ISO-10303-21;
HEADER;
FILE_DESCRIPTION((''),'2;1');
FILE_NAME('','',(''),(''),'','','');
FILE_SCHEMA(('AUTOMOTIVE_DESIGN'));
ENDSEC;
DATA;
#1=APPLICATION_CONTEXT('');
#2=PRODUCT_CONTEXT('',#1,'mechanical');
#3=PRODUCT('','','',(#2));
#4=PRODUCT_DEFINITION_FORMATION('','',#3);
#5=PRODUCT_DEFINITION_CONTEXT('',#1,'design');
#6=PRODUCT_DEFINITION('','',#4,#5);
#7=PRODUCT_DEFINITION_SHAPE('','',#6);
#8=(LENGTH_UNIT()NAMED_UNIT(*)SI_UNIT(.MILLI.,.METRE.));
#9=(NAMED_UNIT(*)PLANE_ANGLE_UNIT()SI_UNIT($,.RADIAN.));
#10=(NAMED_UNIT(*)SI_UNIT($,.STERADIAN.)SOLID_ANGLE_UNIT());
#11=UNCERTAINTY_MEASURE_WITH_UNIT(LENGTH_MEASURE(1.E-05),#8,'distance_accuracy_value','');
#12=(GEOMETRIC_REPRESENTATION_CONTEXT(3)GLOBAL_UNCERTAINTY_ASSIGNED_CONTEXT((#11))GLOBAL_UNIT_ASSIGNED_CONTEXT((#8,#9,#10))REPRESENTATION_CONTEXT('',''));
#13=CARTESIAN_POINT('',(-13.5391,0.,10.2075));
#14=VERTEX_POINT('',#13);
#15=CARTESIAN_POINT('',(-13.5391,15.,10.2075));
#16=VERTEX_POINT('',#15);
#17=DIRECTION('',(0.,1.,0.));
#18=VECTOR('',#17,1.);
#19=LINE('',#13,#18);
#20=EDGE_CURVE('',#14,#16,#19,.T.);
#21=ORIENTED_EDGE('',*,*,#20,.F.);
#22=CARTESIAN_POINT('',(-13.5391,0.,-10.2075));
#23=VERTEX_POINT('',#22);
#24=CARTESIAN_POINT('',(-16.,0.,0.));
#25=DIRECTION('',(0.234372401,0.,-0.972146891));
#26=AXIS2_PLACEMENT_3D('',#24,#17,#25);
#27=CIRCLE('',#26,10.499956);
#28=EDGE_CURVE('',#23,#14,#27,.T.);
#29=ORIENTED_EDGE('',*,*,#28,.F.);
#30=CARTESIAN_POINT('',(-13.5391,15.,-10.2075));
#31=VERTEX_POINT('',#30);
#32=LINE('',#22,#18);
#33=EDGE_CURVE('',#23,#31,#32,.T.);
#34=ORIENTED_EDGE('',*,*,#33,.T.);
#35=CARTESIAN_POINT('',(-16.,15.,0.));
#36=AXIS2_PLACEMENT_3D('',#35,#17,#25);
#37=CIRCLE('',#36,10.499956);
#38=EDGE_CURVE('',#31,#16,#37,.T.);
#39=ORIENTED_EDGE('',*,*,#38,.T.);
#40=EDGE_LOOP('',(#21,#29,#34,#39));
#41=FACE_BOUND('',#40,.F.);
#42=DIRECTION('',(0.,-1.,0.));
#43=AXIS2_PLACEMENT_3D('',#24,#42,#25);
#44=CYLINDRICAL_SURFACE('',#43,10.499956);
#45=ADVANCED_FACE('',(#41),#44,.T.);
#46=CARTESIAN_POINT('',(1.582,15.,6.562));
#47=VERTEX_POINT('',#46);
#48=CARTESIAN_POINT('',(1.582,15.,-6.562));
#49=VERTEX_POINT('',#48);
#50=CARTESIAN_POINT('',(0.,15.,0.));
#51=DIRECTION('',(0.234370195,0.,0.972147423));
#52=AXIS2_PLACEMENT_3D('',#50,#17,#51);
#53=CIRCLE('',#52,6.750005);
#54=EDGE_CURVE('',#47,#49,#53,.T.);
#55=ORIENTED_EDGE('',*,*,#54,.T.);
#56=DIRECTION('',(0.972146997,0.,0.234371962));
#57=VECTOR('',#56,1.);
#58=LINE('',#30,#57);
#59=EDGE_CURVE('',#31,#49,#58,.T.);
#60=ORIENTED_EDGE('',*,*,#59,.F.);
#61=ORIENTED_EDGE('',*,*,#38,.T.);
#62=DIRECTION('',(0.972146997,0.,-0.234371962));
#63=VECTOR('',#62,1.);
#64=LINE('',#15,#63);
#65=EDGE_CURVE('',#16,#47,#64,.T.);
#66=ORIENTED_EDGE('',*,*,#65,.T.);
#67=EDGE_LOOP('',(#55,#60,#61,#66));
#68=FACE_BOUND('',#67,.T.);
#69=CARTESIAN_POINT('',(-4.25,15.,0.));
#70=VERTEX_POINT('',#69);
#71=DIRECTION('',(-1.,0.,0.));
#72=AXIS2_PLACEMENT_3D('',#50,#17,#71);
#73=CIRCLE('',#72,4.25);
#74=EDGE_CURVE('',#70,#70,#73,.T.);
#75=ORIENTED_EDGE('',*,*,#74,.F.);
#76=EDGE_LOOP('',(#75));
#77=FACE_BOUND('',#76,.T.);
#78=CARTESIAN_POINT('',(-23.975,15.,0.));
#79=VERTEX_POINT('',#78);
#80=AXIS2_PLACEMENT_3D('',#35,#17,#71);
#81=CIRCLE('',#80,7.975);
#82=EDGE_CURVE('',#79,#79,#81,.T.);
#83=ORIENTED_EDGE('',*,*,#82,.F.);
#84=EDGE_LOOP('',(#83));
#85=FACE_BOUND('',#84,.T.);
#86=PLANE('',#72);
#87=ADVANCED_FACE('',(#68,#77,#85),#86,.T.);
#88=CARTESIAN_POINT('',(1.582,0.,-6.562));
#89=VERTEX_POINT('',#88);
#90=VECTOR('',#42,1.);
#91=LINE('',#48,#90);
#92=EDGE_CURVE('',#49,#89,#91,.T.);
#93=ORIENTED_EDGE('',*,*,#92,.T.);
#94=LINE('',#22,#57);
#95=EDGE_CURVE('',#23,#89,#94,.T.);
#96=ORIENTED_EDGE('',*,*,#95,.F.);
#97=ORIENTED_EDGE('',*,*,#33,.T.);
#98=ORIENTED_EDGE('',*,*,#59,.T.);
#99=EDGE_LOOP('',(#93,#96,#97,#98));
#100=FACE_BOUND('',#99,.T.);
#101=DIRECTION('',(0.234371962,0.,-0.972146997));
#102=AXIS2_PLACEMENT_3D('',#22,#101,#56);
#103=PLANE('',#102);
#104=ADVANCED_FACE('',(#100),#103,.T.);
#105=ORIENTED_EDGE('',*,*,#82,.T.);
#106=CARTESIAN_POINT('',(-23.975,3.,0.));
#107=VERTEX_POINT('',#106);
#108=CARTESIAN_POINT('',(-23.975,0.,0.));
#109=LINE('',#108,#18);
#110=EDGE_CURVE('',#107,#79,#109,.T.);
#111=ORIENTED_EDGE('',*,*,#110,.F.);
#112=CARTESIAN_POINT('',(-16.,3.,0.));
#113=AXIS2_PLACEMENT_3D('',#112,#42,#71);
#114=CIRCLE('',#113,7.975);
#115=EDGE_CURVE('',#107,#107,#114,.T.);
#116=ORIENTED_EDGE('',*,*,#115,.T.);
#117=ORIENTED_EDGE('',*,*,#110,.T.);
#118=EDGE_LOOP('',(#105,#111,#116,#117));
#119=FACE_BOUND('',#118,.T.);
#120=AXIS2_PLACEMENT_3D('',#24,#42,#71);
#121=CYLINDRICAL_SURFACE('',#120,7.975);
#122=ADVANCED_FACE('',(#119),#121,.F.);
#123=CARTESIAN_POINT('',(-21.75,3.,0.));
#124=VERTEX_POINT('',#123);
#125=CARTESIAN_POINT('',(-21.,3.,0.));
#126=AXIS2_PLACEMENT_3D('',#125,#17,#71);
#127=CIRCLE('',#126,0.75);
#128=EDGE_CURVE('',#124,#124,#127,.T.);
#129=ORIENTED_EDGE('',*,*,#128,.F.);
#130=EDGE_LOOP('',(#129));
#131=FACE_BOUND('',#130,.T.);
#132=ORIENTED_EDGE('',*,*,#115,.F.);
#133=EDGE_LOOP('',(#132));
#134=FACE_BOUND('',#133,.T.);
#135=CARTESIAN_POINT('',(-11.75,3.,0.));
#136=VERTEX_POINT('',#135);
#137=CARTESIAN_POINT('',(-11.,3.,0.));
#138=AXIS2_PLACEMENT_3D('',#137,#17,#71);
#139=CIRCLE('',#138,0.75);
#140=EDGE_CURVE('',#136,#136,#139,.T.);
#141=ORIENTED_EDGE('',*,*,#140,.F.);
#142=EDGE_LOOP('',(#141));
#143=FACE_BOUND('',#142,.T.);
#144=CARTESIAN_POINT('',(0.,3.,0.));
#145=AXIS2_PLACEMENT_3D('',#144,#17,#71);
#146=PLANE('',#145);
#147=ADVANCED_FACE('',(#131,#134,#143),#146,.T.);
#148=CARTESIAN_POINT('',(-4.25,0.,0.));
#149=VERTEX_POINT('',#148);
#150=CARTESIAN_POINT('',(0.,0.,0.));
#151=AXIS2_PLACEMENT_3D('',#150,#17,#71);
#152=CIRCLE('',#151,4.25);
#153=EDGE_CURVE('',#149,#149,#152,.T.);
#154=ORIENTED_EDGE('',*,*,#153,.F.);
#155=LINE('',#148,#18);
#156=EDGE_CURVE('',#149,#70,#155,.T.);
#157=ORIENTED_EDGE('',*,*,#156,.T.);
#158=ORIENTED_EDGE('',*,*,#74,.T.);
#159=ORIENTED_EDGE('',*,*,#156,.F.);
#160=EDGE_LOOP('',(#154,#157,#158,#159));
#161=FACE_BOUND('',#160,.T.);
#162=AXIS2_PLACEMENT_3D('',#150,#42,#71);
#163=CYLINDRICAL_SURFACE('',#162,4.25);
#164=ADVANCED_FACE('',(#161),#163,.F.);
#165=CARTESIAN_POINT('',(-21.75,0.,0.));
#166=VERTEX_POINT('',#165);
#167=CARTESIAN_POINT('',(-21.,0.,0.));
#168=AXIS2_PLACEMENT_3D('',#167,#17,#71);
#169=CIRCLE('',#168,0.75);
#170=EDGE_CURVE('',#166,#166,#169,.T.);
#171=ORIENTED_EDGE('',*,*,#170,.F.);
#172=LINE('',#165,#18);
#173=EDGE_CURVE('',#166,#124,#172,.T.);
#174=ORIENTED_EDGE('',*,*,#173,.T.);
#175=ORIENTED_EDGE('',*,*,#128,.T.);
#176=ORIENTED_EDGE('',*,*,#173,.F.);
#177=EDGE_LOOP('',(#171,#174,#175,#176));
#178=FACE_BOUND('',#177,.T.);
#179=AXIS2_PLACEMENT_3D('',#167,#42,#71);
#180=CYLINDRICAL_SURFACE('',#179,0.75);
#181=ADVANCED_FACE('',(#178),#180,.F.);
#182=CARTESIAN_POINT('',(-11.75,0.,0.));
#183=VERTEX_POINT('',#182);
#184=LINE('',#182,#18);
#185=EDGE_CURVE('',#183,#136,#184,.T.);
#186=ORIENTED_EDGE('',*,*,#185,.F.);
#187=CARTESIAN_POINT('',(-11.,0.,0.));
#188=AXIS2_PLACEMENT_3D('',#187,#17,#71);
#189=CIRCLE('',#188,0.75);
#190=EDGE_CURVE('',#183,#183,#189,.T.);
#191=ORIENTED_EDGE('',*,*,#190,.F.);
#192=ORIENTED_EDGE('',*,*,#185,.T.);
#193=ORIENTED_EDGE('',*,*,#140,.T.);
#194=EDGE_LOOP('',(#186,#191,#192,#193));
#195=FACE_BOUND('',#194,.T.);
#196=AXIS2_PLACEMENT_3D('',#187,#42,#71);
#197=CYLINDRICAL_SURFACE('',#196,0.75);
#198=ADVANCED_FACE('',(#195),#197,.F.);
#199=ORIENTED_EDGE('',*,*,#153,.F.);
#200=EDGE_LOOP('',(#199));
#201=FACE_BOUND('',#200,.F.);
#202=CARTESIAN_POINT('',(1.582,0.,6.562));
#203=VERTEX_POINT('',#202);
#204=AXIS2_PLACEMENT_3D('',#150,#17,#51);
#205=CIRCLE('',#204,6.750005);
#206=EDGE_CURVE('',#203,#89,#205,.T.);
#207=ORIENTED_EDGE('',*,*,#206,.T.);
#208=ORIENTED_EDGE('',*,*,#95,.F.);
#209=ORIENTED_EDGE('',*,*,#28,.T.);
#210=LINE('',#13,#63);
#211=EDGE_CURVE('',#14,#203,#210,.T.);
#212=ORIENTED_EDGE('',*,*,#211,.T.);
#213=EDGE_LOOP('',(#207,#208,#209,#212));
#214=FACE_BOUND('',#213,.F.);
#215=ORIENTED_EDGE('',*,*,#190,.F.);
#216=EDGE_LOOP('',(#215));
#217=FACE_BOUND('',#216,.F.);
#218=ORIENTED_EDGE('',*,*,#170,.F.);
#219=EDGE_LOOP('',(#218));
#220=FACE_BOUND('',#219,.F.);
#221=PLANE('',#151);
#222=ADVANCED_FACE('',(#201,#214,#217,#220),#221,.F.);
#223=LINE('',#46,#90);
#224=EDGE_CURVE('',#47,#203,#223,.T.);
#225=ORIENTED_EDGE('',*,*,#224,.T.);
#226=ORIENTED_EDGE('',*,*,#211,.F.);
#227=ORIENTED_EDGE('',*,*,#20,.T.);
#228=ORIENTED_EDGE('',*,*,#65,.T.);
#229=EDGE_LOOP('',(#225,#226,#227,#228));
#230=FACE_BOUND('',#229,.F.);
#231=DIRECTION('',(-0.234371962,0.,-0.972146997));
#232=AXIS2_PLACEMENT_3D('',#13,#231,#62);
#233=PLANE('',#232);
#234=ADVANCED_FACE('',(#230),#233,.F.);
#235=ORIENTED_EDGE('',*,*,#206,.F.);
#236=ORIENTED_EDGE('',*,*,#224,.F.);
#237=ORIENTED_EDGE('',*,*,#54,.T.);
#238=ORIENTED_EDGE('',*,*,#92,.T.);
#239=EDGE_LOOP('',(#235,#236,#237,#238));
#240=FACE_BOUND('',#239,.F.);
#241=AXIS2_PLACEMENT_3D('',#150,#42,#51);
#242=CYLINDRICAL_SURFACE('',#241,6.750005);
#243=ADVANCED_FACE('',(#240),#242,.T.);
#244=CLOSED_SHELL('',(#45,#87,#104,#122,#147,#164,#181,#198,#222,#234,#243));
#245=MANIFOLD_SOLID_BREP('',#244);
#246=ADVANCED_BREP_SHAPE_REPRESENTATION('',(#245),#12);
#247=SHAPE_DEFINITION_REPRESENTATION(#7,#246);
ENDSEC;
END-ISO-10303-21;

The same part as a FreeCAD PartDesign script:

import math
import FreeCAD as App
import Part
import Sketcher

V = App.Vector

doc = App.newDocument("Part")
body = doc.addObject("PartDesign::Body", "Body")

sketch1 = doc.addObject("Sketcher::SketchObject", "Sketch")
body.addObject(sketch1)
sketch1.AttachmentSupport = (doc.XZ_Plane, [""])
sketch1.MapMode = "FlatFace"
sketch1.addGeometry([
    Part.LineSegment(V(1.582, -6.562, 0), V(-13.5391, -10.2075, 0)),
    Part.ArcOfCircle(Part.Circle(V(-16, 0, 0), V(0, 0, 1), 10.499956), math.radians(76.445369), math.radians(283.554631)),
    Part.LineSegment(V(-13.5391, 10.2075, 0), V(1.582, 6.562, 0)),
    Part.ArcOfCircle(Part.Circle(V(0, 0, 0), V(0, 0, 1), 6.750005), math.radians(-76.445499), math.radians(76.445499)),
    Part.Circle(V(-11, 0, 0), V(0, 0, 1), 0.75),
    Part.Circle(V(-21, 0, 0), V(0, 0, 1), 0.75),
    Part.Circle(V(0, 0, 0), V(0, 0, 1), 4.25),
], False)
sketch1.addConstraint([
    Sketcher.Constraint("Tangent", 0, 2, 1, 2),
    Sketcher.Constraint("Tangent", 1, 1, 2, 1),
    Sketcher.Constraint("Tangent", 2, 2, 3, 2),
    Sketcher.Constraint("Tangent", 3, 1, 0, 1),
    Sketcher.Constraint("Coincident", 3, 3, -1, 1),
    Sketcher.Constraint("Coincident", 6, 3, -1, 1),
    Sketcher.Constraint("Equal", 4, 5),
    Sketcher.Constraint("PointOnObject", 1, 3, -1),
    Sketcher.Constraint("PointOnObject", 4, 3, -1),
    Sketcher.Constraint("PointOnObject", 5, 3, -1),
    Sketcher.Constraint("Diameter", 4, 1.5),
    Sketcher.Constraint("Diameter", 6, 8.5),
    Sketcher.Constraint("Radius", 1, 10.5),
    Sketcher.Constraint("Radius", 3, 6.75),
    Sketcher.Constraint("DistanceX", 1, 3, -1, 1, 16.0),
    Sketcher.Constraint("DistanceX", 5, 3, -1, 1, 21.0),
    Sketcher.Constraint("DistanceX", 5, 3, 4, 3, 10.0),
])
pad1 = doc.addObject("PartDesign::Pad", "Pad")
body.addObject(pad1)
pad1.Profile = sketch1
pad1.Length = 3
pad1.Reversed = True

sketch2 = doc.addObject("Sketcher::SketchObject", "Sketch001")
body.addObject(sketch2)
sketch2.AttachmentSupport = (doc.XZ_Plane, [""])
sketch2.MapMode = "FlatFace"
sketch2.addGeometry([
    Part.LineSegment(V(1.582, -6.562, 0), V(-13.5391, -10.2075, 0)),
    Part.ArcOfCircle(Part.Circle(V(-16, 0, 0), V(0, 0, 1), 10.499956), math.radians(76.445369), math.radians(283.554631)),
    Part.LineSegment(V(-13.5391, 10.2075, 0), V(1.582, 6.562, 0)),
    Part.ArcOfCircle(Part.Circle(V(0, 0, 0), V(0, 0, 1), 6.750005), math.radians(-76.445499), math.radians(76.445499)),
    Part.Circle(V(0, 0, 0), V(0, 0, 1), 4.25),
    Part.Circle(V(-16, 0, 0), V(0, 0, 1), 7.975),
], False)
sketch2.addConstraint([
    Sketcher.Constraint("Tangent", 0, 2, 1, 2),
    Sketcher.Constraint("Tangent", 1, 1, 2, 1),
    Sketcher.Constraint("Tangent", 2, 2, 3, 2),
    Sketcher.Constraint("Tangent", 3, 1, 0, 1),
    Sketcher.Constraint("Coincident", 3, 3, -1, 1),
    Sketcher.Constraint("Coincident", 4, 3, -1, 1),
    Sketcher.Constraint("Coincident", 5, 3, 1, 3),
    Sketcher.Constraint("PointOnObject", 1, 3, -1),
    Sketcher.Constraint("Diameter", 4, 8.5),
    Sketcher.Constraint("Radius", 1, 10.5),
    Sketcher.Constraint("Diameter", 5, 15.95),
    Sketcher.Constraint("Radius", 3, 6.75),
    Sketcher.Constraint("DistanceX", 1, 3, -1, 1, 16.0),
])
pad2 = doc.addObject("PartDesign::Pad", "Pad001")
body.addObject(pad2)
pad2.Profile = sketch2
pad2.Length = 15
pad2.Reversed = True

doc.recompute()
